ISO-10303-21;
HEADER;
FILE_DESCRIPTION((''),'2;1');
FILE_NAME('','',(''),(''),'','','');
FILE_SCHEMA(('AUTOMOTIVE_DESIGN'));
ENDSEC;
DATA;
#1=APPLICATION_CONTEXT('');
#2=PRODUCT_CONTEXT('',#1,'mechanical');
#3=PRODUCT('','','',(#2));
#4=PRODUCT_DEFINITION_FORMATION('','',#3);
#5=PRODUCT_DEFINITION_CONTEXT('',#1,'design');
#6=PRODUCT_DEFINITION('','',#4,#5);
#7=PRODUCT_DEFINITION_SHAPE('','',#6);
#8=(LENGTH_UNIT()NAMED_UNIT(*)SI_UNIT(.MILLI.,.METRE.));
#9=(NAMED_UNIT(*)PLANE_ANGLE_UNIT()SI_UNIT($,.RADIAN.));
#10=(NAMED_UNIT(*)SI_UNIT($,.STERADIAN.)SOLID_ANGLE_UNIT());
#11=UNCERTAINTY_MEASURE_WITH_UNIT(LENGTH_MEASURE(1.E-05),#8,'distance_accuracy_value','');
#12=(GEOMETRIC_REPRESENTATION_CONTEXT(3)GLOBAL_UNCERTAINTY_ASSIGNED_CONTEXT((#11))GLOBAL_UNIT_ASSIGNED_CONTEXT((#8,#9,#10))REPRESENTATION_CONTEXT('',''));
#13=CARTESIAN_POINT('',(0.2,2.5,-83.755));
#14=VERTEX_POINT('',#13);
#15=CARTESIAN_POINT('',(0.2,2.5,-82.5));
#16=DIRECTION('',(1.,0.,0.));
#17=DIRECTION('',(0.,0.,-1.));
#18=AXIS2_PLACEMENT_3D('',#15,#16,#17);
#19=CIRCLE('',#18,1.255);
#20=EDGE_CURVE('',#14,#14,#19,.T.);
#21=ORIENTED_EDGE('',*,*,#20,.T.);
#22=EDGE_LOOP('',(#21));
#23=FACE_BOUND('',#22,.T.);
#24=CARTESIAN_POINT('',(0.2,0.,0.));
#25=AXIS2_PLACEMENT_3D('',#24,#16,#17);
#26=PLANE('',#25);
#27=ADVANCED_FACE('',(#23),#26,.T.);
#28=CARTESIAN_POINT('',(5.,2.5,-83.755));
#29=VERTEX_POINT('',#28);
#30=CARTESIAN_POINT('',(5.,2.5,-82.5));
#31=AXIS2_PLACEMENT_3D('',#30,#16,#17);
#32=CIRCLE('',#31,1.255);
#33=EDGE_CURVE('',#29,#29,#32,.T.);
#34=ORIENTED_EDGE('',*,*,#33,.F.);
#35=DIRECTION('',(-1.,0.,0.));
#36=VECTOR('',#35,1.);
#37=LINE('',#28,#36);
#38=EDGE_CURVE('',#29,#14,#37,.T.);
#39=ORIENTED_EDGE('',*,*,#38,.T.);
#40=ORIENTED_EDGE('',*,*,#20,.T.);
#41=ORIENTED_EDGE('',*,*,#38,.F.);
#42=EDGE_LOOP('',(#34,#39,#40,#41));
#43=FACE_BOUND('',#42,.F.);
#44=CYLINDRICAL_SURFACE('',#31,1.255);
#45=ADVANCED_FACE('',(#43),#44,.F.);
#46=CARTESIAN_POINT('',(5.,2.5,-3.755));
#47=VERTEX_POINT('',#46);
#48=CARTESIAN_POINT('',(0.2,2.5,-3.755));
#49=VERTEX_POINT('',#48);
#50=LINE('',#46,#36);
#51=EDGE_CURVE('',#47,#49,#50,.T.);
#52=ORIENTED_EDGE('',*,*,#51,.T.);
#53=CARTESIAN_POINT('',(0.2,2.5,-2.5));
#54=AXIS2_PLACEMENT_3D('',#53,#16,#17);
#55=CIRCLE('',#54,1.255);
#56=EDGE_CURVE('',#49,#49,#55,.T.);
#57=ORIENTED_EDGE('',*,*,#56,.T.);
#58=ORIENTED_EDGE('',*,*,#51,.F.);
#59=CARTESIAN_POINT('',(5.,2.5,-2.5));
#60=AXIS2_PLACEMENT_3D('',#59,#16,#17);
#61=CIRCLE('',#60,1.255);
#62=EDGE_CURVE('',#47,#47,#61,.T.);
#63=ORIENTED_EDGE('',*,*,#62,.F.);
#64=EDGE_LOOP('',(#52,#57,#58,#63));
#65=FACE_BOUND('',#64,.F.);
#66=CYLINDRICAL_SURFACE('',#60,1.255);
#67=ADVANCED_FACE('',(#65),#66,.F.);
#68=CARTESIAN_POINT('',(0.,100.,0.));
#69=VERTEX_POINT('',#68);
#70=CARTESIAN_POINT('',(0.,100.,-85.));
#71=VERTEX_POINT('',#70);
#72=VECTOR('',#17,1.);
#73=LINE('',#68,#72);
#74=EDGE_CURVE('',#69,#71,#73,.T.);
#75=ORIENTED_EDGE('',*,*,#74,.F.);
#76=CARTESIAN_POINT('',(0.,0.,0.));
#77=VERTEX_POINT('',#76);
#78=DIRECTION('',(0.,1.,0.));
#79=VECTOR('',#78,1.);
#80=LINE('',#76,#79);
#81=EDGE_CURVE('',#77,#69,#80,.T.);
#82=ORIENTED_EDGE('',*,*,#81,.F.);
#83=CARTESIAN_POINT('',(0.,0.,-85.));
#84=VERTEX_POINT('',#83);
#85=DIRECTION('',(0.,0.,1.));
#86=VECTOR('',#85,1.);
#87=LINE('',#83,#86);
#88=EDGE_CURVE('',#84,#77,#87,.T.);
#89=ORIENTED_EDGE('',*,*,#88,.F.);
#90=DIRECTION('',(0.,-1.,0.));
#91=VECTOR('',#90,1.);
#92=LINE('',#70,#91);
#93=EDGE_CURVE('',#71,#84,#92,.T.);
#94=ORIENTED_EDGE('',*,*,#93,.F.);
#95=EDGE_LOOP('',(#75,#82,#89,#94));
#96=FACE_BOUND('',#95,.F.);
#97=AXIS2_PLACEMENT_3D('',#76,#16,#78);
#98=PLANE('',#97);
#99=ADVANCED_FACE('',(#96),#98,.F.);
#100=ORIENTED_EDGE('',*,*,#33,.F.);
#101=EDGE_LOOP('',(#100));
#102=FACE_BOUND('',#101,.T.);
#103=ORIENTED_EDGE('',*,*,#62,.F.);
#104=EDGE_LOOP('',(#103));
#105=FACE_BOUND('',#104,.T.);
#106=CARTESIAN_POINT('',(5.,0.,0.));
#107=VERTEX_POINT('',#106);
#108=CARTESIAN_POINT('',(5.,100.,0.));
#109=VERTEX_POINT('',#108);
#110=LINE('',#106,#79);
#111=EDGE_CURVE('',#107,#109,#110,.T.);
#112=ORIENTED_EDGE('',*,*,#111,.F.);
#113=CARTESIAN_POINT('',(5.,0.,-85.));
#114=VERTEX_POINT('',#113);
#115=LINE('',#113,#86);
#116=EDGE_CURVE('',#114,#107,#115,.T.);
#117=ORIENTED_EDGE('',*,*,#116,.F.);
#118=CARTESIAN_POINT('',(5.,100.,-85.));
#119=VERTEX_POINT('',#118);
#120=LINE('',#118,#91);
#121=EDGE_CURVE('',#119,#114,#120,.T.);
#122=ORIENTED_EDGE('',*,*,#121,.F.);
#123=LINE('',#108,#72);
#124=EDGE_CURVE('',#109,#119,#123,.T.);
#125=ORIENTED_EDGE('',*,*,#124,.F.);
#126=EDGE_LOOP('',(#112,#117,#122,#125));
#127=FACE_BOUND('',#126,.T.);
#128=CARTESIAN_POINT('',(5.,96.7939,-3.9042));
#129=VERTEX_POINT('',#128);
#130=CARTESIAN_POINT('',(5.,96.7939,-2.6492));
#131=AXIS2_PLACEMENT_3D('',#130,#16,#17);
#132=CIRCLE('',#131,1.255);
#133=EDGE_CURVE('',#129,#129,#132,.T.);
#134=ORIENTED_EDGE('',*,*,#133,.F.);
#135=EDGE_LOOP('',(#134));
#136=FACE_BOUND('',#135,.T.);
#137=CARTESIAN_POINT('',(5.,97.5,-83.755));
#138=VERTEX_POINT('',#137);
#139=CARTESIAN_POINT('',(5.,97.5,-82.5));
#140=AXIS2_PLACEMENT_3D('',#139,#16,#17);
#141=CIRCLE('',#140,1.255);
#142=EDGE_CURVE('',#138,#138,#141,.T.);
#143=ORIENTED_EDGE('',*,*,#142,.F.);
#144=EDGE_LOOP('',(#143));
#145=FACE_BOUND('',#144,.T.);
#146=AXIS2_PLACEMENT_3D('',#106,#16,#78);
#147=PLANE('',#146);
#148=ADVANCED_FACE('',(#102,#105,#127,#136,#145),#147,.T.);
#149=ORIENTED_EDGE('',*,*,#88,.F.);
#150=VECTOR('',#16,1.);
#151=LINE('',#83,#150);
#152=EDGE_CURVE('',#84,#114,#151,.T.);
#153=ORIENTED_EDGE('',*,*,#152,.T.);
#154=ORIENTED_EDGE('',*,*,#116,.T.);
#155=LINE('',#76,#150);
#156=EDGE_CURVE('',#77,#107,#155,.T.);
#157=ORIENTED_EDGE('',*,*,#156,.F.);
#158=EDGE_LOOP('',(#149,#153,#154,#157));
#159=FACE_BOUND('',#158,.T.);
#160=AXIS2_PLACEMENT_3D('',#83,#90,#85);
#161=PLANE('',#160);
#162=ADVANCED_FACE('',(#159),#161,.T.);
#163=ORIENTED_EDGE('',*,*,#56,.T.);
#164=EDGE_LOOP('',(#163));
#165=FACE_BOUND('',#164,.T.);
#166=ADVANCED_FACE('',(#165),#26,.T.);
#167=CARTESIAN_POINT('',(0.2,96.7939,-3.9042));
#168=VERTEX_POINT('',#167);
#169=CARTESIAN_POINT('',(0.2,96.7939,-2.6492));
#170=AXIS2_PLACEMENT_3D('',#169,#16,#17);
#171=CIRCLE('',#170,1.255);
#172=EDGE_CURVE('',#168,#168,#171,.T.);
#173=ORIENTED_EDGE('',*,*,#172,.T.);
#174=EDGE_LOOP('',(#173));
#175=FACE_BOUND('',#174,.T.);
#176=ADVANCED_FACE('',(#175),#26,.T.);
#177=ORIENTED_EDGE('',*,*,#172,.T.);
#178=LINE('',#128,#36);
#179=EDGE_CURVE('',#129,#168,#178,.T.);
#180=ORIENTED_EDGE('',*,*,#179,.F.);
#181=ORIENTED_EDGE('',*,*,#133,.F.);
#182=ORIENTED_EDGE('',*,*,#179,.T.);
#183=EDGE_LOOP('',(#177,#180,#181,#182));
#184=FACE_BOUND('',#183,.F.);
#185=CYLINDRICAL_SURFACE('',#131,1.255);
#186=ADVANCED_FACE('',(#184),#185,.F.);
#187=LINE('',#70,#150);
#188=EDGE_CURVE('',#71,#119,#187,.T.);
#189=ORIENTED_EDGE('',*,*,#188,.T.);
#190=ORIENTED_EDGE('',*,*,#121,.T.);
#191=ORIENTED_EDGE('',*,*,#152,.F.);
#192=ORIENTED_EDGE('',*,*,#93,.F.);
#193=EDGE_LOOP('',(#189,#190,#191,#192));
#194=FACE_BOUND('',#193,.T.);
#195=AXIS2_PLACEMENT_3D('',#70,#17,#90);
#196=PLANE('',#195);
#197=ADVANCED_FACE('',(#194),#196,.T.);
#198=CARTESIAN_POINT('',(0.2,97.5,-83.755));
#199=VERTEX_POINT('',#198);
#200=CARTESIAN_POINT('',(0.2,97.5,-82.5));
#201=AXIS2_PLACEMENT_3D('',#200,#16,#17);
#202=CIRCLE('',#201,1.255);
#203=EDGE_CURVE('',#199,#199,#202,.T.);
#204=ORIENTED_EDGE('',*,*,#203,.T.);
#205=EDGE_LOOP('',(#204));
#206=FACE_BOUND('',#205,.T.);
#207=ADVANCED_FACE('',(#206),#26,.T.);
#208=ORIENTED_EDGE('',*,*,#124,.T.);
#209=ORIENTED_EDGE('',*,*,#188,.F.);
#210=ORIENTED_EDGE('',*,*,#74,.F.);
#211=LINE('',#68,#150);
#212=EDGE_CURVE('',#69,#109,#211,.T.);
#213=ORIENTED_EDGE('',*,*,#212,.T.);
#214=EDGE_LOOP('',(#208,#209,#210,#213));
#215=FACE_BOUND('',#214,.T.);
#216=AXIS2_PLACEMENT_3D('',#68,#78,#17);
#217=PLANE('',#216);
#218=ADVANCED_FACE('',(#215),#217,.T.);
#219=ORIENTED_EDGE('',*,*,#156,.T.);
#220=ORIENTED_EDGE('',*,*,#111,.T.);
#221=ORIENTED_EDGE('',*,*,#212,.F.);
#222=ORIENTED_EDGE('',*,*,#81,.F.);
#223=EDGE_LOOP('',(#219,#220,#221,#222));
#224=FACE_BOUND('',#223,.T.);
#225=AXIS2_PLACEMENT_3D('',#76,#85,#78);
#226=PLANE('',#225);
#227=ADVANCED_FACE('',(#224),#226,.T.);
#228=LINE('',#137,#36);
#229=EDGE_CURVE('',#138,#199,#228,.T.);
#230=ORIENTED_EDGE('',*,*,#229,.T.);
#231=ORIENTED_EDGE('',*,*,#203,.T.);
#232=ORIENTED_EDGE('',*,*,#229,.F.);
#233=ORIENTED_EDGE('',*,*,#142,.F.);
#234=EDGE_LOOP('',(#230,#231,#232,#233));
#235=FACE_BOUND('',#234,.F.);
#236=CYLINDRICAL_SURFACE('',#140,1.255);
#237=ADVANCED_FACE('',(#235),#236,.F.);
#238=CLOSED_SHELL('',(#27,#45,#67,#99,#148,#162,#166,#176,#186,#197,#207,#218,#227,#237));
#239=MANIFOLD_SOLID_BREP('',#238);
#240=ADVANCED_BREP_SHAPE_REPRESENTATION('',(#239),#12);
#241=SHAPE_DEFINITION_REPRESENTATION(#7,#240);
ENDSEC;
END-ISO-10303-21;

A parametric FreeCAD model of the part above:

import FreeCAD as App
import Part
import Sketcher

doc = App.newDocument("Part")
body = doc.addObject("PartDesign::Body", "Body")

sketch1 = body.newObject("Sketcher::SketchObject", "Sketch")
sketch1.AttachmentSupport = (doc.getObject("YZ_Plane"), [""])
sketch1.MapMode = "FlatFace"
sketch1.addGeometry(Part.LineSegment(App.Vector(100, 0, 0), App.Vector(0, 0, 0)), False)
sketch1.addGeometry(Part.LineSegment(App.Vector(0, 0, 0), App.Vector(0, -85, 0)), False)
sketch1.addGeometry(Part.LineSegment(App.Vector(0, -85, 0), App.Vector(100, -85, 0)), False)
sketch1.addGeometry(Part.LineSegment(App.Vector(100, -85, 0), App.Vector(100, 0, 0)), False)
sketch1.addConstraint(Sketcher.Constraint("Coincident", 0, 2, 1, 1))
sketch1.addConstraint(Sketcher.Constraint("Coincident", 1, 2, 2, 1))
sketch1.addConstraint(Sketcher.Constraint("Coincident", 2, 2, 3, 1))
sketch1.addConstraint(Sketcher.Constraint("Coincident", 3, 2, 0, 1))
sketch1.addConstraint(Sketcher.Constraint("Horizontal", 0))
sketch1.addConstraint(Sketcher.Constraint("Vertical", 1))
sketch1.addConstraint(Sketcher.Constraint("Horizontal", 2))
sketch1.addConstraint(Sketcher.Constraint("Vertical", 3))
sketch1.addConstraint(Sketcher.Constraint("Coincident", 0, 2, -1, 1))
sketch1.addConstraint(Sketcher.Constraint("DistanceX", 0, 2, 0, 1, 100.0))
sketch1.addConstraint(Sketcher.Constraint("DistanceY", 1, 2, 1, 1, 85.0))
pad1 = body.newObject("PartDesign::Pad", "Pad")
pad1.Profile = sketch1
pad1.Length = 5

sketch2 = body.newObject("Sketcher::SketchObject", "Sketch001")
sketch2.AttachmentSupport = (doc.getObject("YZ_Plane"), [""])
sketch2.MapMode = "FlatFace"
sketch2.AttachmentOffset = App.Placement(App.Vector(0, 0, 5), App.Rotation())
sketch2.addGeometry(Part.Circle(App.Vector(2.5, -2.5, 0), App.Vector(0, 0, 1), 1.3), False)
sketch2.addGeometry(Part.Circle(App.Vector(2.5, -82.5, 0), App.Vector(0, 0, 1), 1.3), False)
sketch2.addGeometry(Part.Circle(App.Vector(97.5, -82.5, 0), App.Vector(0, 0, 1), 1.3), False)
sketch2.addGeometry(Part.Circle(App.Vector(96.8, -2.6, 0), App.Vector(0, 0, 1), 1.3), False)
sketch2.addConstraint(Sketcher.Constraint("Equal", 0, 1))
sketch2.addConstraint(Sketcher.Constraint("Equal", 1, 2))
sketch2.addConstraint(Sketcher.Constraint("Equal", 2, 3))
sketch2.addConstraint(Sketcher.Constraint("Horizontal", 1, 3, 2, 3))
sketch2.addConstraint(Sketcher.Constraint("Vertical", 0, 3, 1, 3))
sketch2.addConstraint(Sketcher.Constraint("Diameter", 0, 2.51))
sketch2.addConstraint(Sketcher.Constraint("DistanceX", -1, 1, 0, 3, 2.5))
sketch2.addConstraint(Sketcher.Constraint("DistanceY", 0, 3, -1, 1, 2.5))
sketch2.addConstraint(Sketcher.Constraint("DistanceY", 1, 3, 0, 3, 80.0))
sketch2.addConstraint(Sketcher.Constraint("DistanceX", 1, 3, 2, 3, 95.0))
sketch2.addConstraint(Sketcher.Constraint("DistanceX", -1, 1, 3, 3, 96.794))
sketch2.addConstraint(Sketcher.Constraint("DistanceY", 3, 3, -1, 1, 2.6492))
pocket1 = body.newObject("PartDesign::Pocket", "Pocket")
pocket1.Profile = sketch2
pocket1.Length = 4.8

doc.recompute()
